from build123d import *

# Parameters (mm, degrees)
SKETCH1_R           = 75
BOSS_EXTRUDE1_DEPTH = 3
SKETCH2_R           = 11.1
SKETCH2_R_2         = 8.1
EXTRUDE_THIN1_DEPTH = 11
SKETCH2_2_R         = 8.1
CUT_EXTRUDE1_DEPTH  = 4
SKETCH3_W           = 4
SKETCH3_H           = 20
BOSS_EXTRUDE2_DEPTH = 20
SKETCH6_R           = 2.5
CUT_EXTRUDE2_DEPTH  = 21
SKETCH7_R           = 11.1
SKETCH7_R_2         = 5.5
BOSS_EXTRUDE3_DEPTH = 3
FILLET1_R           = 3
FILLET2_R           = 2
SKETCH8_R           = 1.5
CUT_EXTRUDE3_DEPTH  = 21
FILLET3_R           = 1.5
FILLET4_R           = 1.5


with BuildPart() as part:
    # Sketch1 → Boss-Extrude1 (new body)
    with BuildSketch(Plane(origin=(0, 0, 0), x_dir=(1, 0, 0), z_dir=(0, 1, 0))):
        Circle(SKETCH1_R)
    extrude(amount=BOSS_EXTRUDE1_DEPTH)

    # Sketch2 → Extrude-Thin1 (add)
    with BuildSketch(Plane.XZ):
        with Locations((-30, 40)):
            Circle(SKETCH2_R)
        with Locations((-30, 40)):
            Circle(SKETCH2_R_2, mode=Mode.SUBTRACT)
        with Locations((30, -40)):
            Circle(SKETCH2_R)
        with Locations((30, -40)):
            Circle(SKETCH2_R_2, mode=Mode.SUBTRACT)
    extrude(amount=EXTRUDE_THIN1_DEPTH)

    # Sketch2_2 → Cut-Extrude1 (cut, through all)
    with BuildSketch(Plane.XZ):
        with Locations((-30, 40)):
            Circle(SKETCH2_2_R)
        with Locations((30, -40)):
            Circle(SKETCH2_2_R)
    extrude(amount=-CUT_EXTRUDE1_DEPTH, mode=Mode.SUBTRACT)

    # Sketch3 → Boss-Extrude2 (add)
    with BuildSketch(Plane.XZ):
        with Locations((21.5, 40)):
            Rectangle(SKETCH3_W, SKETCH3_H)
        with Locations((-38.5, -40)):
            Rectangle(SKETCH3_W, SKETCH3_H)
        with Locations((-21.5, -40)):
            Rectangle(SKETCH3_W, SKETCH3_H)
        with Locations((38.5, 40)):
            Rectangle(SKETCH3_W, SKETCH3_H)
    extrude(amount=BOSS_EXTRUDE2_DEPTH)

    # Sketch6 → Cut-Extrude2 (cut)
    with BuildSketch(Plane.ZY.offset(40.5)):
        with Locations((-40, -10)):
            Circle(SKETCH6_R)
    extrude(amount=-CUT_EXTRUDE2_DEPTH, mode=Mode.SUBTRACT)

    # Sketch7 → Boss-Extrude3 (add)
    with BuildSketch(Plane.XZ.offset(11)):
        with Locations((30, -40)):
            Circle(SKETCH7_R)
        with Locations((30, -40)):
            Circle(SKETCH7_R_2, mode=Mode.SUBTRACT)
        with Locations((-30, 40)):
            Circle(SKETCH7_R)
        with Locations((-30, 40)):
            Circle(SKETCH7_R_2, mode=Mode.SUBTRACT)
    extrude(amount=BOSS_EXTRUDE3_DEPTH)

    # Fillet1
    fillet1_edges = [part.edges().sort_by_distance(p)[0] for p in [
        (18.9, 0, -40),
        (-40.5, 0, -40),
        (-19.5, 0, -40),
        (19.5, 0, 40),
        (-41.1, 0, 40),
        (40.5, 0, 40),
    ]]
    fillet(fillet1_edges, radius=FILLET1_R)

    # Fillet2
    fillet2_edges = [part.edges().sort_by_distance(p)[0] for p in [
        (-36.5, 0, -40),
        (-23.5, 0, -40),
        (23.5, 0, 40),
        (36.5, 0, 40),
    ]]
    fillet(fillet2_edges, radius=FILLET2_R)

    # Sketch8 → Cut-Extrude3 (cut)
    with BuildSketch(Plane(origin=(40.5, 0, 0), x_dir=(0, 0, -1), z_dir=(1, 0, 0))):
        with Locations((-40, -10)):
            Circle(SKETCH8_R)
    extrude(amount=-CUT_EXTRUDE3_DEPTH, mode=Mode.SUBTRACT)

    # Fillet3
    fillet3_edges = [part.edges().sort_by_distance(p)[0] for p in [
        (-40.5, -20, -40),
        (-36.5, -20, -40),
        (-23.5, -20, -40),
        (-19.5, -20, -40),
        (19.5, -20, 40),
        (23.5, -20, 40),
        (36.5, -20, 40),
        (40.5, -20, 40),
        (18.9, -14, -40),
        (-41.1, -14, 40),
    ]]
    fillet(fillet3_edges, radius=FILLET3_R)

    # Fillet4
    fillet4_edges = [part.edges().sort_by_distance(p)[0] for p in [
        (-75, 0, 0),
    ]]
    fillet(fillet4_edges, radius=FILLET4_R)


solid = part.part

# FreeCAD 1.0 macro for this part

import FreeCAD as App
import Part
import Sketcher
from FreeCAD import Vector


def edges_at(feature, points):
    """Names of the edges that pass closest to the given points."""
    edges = feature.Shape.Edges
    near = lambda p: min(range(len(edges)), key=lambda i: edges[i].distToShape(Part.Vertex(*p))[0])
    return sorted({f"Edge{near(p) + 1}" for p in points})

doc = App.newDocument("Part")
body = doc.addObject("PartDesign::Body", "Body")

# Sketch on XZ plane
sketch1 = body.newObject("Sketcher::SketchObject", "Sketch")
sketch1.AttachmentSupport = (doc.getObject("XZ_Plane"), [""])
sketch1.MapMode = "FlatFace"
sketch1.addGeometry(Part.Circle(Vector(0, 0, 0), Vector(0, 0, 1), 75), False)
sketch1.addConstraint([
    Sketcher.Constraint("Coincident", 0, 3, -1, 1),
    Sketcher.Constraint("Diameter", 0, 150.0),
])
pad1 = body.newObject("PartDesign::Pad", "Pad")
pad1.Profile = sketch1
pad1.Length = 3
pad1.Reversed = True

# Sketch on XZ plane
sketch2 = body.newObject("Sketcher::SketchObject", "Sketch001")
sketch2.AttachmentSupport = (doc.getObject("XZ_Plane"), [""])
sketch2.MapMode = "FlatFace"
sketch2.addGeometry([
    Part.Circle(Vector(-30, 40, 0), Vector(0, 0, 1), 11.1),
    Part.Circle(Vector(-30, 40, 0), Vector(0, 0, 1), 8.1),
    Part.Circle(Vector(30, -40, 0), Vector(0, 0, 1), 11.1),
    Part.Circle(Vector(30, -40, 0), Vector(0, 0, 1), 8.1),
], False)
sketch2.addConstraint([
    Sketcher.Constraint("Coincident", 1, 3, 0, 3),
    Sketcher.Constraint("Coincident", 3, 3, 2, 3),
    Sketcher.Constraint("Equal", 0, 2),
    Sketcher.Constraint("Equal", 1, 3),
    Sketcher.Constraint("Symmetric", 0, 3, 2, 3, -1, 1),
    Sketcher.Constraint("Diameter", 0, 22.2),
    Sketcher.Constraint("Diameter", 1, 16.2),
    Sketcher.Constraint("DistanceX", 0, 3, -1, 1, 30.0),
    Sketcher.Constraint("DistanceY", -1, 1, 0, 3, 40.0),
])
pad2 = body.newObject("PartDesign::Pad", "Pad001")
pad2.Profile = sketch2
pad2.Length = 11

# Sketch on XZ plane
sketch3 = body.newObject("Sketcher::SketchObject", "Sketch002")
sketch3.AttachmentSupport = (doc.getObject("XZ_Plane"), [""])
sketch3.MapMode = "FlatFace"
sketch3.addGeometry([
    Part.Circle(Vector(-30, 40, 0), Vector(0, 0, 1), 8.1),
    Part.Circle(Vector(30, -40, 0), Vector(0, 0, 1), 8.1),
], False)
sketch3.addConstraint([
    Sketcher.Constraint("Equal", 0, 1),
    Sketcher.Constraint("Symmetric", 0, 3, 1, 3, -1, 1),
    Sketcher.Constraint("Diameter", 0, 16.2),
    Sketcher.Constraint("DistanceX", 0, 3, -1, 1, 30.0),
    Sketcher.Constraint("DistanceY", -1, 1, 0, 3, 40.0),
])
pocket1 = body.newObject("PartDesign::Pocket", "Pocket")
pocket1.Profile = sketch3
pocket1.Type = "ThroughAll"

# Sketch on XZ plane
sketch4 = body.newObject("Sketcher::SketchObject", "Sketch003")
sketch4.AttachmentSupport = (doc.getObject("XZ_Plane"), [""])
sketch4.MapMode = "FlatFace"
sketch4.addGeometry([
    Part.LineSegment(Vector(19.5, 50, 0), Vector(19.5, 30, 0)),  # 0
    Part.LineSegment(Vector(19.5, 30, 0), Vector(23.5, 30, 0)),  # 1
    Part.LineSegment(Vector(23.5, 30, 0), Vector(23.5, 50, 0)),  # 2
    Part.LineSegment(Vector(23.5, 50, 0), Vector(19.5, 50, 0)),  # 3
    Part.LineSegment(Vector(-40.5, -30, 0), Vector(-40.5, -50, 0)),  # 4
    Part.LineSegment(Vector(-40.5, -50, 0), Vector(-36.5, -50, 0)),  # 5
    Part.LineSegment(Vector(-36.5, -50, 0), Vector(-36.5, -30, 0)),  # 6
    Part.LineSegment(Vector(-36.5, -30, 0), Vector(-40.5, -30, 0)),  # 7
    Part.LineSegment(Vector(-23.5, -30, 0), Vector(-23.5, -50, 0)),  # 8
    Part.LineSegment(Vector(-23.5, -50, 0), Vector(-19.5, -50, 0)),  # 9
    Part.LineSegment(Vector(-19.5, -50, 0), Vector(-19.5, -30, 0)),  # 10
    Part.LineSegment(Vector(-19.5, -30, 0), Vector(-23.5, -30, 0)),  # 11
    Part.LineSegment(Vector(36.5, 50, 0), Vector(36.5, 30, 0)),  # 12
    Part.LineSegment(Vector(36.5, 30, 0), Vector(40.5, 30, 0)),  # 13
    Part.LineSegment(Vector(40.5, 30, 0), Vector(40.5, 50, 0)),  # 14
    Part.LineSegment(Vector(40.5, 50, 0), Vector(36.5, 50, 0)),  # 15
], False)
sketch4.addConstraint([
    Sketcher.Constraint("Coincident", 0, 2, 1, 1),
    Sketcher.Constraint("Coincident", 1, 2, 2, 1),
    Sketcher.Constraint("Coincident", 2, 2, 3, 1),
    Sketcher.Constraint("Coincident", 3, 2, 0, 1),
    Sketcher.Constraint("Coincident", 4, 2, 5, 1),
    Sketcher.Constraint("Coincident", 5, 2, 6, 1),
    Sketcher.Constraint("Coincident", 6, 2, 7, 1),
    Sketcher.Constraint("Coincident", 7, 2, 4, 1),
    Sketcher.Constraint("Coincident", 8, 2, 9, 1),
    Sketcher.Constraint("Coincident", 9, 2, 10, 1),
    Sketcher.Constraint("Coincident", 10, 2, 11, 1),
    Sketcher.Constraint("Coincident", 11, 2, 8, 1),
    Sketcher.Constraint("Coincident", 12, 2, 13, 1),
    Sketcher.Constraint("Coincident", 13, 2, 14, 1),
    Sketcher.Constraint("Coincident", 14, 2, 15, 1),
    Sketcher.Constraint("Coincident", 15, 2, 12, 1),
    Sketcher.Constraint("Vertical", 0),
    Sketcher.Constraint("Horizontal", 1),
    Sketcher.Constraint("Vertical", 2),
    Sketcher.Constraint("Horizontal", 3),
    Sketcher.Constraint("Vertical", 4),
    Sketcher.Constraint("Horizontal", 5),
    Sketcher.Constraint("Vertical", 6),
    Sketcher.Constraint("Horizontal", 7),
    Sketcher.Constraint("Vertical", 8),
    Sketcher.Constraint("Horizontal", 9),
    Sketcher.Constraint("Vertical", 10),
    Sketcher.Constraint("Horizontal", 11),
    Sketcher.Constraint("Vertical", 12),
    Sketcher.Constraint("Horizontal", 13),
    Sketcher.Constraint("Vertical", 14),
    Sketcher.Constraint("Horizontal", 15),
    Sketcher.Constraint("Symmetric", 2, 2, 8, 2, -1, 1),
    Sketcher.Constraint("Symmetric", 0, 2, 10, 2, -1, 1),
    Sketcher.Constraint("Symmetric", 6, 2, 12, 2, -1, 1),
    Sketcher.Constraint("Symmetric", 4, 2, 14, 2, -1, 1),
    Sketcher.Constraint("Horizontal", 5, 2, 8, 2),
    Sketcher.Constraint("Horizontal", 7, 2, 10, 2),
    Sketcher.Constraint("Equal", 3, 5),
    Sketcher.Constraint("DistanceX", 1, 1, 1, 2, 4.0),
    Sketcher.Constraint("DistanceY", 0, 2, 0, 1, 20.0),
    Sketcher.Constraint("DistanceY", -1, 1, 0, 2, 30.0),
    Sketcher.Constraint("DistanceX", 4, 2, 0, 2, 60.0),
    Sketcher.Constraint("DistanceX", 5, 2, 8, 2, 13.0),
])
pad3 = body.newObject("PartDesign::Pad", "Pad002")
pad3.Profile = sketch4
pad3.Length = 20

# Sketch on YZ plane
sketch5 = body.newObject("Sketcher::SketchObject", "Sketch004")
sketch5.AttachmentSupport = (doc.getObject("YZ_Plane"), [""])
sketch5.MapMode = "FlatFace"
sketch5.AttachmentOffset = App.Placement(Vector(0, 0, -40.5), App.Rotation())
sketch5.addGeometry(Part.Circle(Vector(-10, -40, 0), Vector(0, 0, 1), 2.5), False)
sketch5.addConstraint([
    Sketcher.Constraint("Diameter", 0, 5.0),
    Sketcher.Constraint("DistanceX", 0, 3, -1, 1, 10.0),
    Sketcher.Constraint("DistanceY", 0, 3, -1, 1, 40.0),
])
pocket2 = body.newObject("PartDesign::Pocket", "Pocket001")
pocket2.Profile = sketch5
pocket2.Length = 21
pocket2.Reversed = True

# Sketch on XZ plane
sketch6 = body.newObject("Sketcher::SketchObject", "Sketch005")
sketch6.AttachmentSupport = (doc.getObject("XZ_Plane"), [""])
sketch6.MapMode = "FlatFace"
sketch6.AttachmentOffset = App.Placement(Vector(0, 0, 11), App.Rotation())
sketch6.addGeometry([
    Part.Circle(Vector(30, -40, 0), Vector(0, 0, 1), 11.1),
    Part.Circle(Vector(30, -40, 0), Vector(0, 0, 1), 5.5),
    Part.Circle(Vector(-30, 40, 0), Vector(0, 0, 1), 11.1),
    Part.Circle(Vector(-30, 40, 0), Vector(0, 0, 1), 5.5),
], False)
sketch6.addConstraint([
    Sketcher.Constraint("Coincident", 1, 3, 0, 3),
    Sketcher.Constraint("Coincident", 3, 3, 2, 3),
    Sketcher.Constraint("Equal", 0, 2),
    Sketcher.Constraint("Equal", 1, 3),
    Sketcher.Constraint("Symmetric", 0, 3, 2, 3, -1, 1),
    Sketcher.Constraint("Diameter", 1, 11.0),
    Sketcher.Constraint("Diameter", 0, 22.2),
    Sketcher.Constraint("DistanceX", -1, 1, 0, 3, 30.0),
    Sketcher.Constraint("DistanceY", 0, 3, -1, 1, 40.0),
])
pad4 = body.newObject("PartDesign::Pad", "Pad003")
pad4.Profile = sketch6
pad4.Length = 3
doc.recompute()

fillet = body.newObject("PartDesign::Fillet", "Fillet")
fillet.Base = (pad4, edges_at(pad4, [
    (18.9, 0, -40),
    (-40.5, 0, -40),
    (-19.5, 0, -40),
    (19.5, 0, 40),
    (-41.1, 0, 40),
    (40.5, 0, 40),
]))
fillet.Radius = 3
doc.recompute()

fillet2 = body.newObject("PartDesign::Fillet", "Fillet001")
fillet2.Base = (fillet, edges_at(fillet, [
    (-36.5, 0, -40),
    (-23.5, 0, -40),
    (23.5, 0, 40),
    (36.5, 0, 40),
]))
fillet2.Radius = 2

# Sketch on YZ plane
sketch7 = body.newObject("Sketcher::SketchObject", "Sketch006")
sketch7.AttachmentSupport = (doc.getObject("YZ_Plane"), [""])
sketch7.MapMode = "FlatFace"
sketch7.AttachmentOffset = App.Placement(Vector(0, 0, 40.5), App.Rotation())
sketch7.addGeometry(Part.Circle(Vector(-10, 40, 0), Vector(0, 0, 1), 1.5), False)
sketch7.addConstraint([
    Sketcher.Constraint("Diameter", 0, 3.0),
    Sketcher.Constraint("DistanceX", 0, 3, -1, 1, 10.0),
    Sketcher.Constraint("DistanceY", -1, 1, 0, 3, 40.0),
])
pocket3 = body.newObject("PartDesign::Pocket", "Pocket002")
pocket3.Profile = sketch7
pocket3.Length = 21
doc.recompute()

fillet3 = body.newObject("PartDesign::Fillet", "Fillet002")
fillet3.Base = (pocket3, edges_at(pocket3, [
    (-40.5, -20, -40),
    (-36.5, -20, -40),
    (-23.5, -20, -40),
    (-19.5, -20, -40),
    (19.5, -20, 40),
    (23.5, -20, 40),
    (36.5, -20, 40),
    (40.5, -20, 40),
    (18.9, -14, -40),
    (-41.1, -14, 40),
]))
fillet3.Radius = 1.5
doc.recompute()

fillet4 = body.newObject("PartDesign::Fillet", "Fillet003")
fillet4.Base = (fillet3, edges_at(fillet3, [(-75, 0, 0)]))
fillet4.Radius = 1.5

doc.recompute()
